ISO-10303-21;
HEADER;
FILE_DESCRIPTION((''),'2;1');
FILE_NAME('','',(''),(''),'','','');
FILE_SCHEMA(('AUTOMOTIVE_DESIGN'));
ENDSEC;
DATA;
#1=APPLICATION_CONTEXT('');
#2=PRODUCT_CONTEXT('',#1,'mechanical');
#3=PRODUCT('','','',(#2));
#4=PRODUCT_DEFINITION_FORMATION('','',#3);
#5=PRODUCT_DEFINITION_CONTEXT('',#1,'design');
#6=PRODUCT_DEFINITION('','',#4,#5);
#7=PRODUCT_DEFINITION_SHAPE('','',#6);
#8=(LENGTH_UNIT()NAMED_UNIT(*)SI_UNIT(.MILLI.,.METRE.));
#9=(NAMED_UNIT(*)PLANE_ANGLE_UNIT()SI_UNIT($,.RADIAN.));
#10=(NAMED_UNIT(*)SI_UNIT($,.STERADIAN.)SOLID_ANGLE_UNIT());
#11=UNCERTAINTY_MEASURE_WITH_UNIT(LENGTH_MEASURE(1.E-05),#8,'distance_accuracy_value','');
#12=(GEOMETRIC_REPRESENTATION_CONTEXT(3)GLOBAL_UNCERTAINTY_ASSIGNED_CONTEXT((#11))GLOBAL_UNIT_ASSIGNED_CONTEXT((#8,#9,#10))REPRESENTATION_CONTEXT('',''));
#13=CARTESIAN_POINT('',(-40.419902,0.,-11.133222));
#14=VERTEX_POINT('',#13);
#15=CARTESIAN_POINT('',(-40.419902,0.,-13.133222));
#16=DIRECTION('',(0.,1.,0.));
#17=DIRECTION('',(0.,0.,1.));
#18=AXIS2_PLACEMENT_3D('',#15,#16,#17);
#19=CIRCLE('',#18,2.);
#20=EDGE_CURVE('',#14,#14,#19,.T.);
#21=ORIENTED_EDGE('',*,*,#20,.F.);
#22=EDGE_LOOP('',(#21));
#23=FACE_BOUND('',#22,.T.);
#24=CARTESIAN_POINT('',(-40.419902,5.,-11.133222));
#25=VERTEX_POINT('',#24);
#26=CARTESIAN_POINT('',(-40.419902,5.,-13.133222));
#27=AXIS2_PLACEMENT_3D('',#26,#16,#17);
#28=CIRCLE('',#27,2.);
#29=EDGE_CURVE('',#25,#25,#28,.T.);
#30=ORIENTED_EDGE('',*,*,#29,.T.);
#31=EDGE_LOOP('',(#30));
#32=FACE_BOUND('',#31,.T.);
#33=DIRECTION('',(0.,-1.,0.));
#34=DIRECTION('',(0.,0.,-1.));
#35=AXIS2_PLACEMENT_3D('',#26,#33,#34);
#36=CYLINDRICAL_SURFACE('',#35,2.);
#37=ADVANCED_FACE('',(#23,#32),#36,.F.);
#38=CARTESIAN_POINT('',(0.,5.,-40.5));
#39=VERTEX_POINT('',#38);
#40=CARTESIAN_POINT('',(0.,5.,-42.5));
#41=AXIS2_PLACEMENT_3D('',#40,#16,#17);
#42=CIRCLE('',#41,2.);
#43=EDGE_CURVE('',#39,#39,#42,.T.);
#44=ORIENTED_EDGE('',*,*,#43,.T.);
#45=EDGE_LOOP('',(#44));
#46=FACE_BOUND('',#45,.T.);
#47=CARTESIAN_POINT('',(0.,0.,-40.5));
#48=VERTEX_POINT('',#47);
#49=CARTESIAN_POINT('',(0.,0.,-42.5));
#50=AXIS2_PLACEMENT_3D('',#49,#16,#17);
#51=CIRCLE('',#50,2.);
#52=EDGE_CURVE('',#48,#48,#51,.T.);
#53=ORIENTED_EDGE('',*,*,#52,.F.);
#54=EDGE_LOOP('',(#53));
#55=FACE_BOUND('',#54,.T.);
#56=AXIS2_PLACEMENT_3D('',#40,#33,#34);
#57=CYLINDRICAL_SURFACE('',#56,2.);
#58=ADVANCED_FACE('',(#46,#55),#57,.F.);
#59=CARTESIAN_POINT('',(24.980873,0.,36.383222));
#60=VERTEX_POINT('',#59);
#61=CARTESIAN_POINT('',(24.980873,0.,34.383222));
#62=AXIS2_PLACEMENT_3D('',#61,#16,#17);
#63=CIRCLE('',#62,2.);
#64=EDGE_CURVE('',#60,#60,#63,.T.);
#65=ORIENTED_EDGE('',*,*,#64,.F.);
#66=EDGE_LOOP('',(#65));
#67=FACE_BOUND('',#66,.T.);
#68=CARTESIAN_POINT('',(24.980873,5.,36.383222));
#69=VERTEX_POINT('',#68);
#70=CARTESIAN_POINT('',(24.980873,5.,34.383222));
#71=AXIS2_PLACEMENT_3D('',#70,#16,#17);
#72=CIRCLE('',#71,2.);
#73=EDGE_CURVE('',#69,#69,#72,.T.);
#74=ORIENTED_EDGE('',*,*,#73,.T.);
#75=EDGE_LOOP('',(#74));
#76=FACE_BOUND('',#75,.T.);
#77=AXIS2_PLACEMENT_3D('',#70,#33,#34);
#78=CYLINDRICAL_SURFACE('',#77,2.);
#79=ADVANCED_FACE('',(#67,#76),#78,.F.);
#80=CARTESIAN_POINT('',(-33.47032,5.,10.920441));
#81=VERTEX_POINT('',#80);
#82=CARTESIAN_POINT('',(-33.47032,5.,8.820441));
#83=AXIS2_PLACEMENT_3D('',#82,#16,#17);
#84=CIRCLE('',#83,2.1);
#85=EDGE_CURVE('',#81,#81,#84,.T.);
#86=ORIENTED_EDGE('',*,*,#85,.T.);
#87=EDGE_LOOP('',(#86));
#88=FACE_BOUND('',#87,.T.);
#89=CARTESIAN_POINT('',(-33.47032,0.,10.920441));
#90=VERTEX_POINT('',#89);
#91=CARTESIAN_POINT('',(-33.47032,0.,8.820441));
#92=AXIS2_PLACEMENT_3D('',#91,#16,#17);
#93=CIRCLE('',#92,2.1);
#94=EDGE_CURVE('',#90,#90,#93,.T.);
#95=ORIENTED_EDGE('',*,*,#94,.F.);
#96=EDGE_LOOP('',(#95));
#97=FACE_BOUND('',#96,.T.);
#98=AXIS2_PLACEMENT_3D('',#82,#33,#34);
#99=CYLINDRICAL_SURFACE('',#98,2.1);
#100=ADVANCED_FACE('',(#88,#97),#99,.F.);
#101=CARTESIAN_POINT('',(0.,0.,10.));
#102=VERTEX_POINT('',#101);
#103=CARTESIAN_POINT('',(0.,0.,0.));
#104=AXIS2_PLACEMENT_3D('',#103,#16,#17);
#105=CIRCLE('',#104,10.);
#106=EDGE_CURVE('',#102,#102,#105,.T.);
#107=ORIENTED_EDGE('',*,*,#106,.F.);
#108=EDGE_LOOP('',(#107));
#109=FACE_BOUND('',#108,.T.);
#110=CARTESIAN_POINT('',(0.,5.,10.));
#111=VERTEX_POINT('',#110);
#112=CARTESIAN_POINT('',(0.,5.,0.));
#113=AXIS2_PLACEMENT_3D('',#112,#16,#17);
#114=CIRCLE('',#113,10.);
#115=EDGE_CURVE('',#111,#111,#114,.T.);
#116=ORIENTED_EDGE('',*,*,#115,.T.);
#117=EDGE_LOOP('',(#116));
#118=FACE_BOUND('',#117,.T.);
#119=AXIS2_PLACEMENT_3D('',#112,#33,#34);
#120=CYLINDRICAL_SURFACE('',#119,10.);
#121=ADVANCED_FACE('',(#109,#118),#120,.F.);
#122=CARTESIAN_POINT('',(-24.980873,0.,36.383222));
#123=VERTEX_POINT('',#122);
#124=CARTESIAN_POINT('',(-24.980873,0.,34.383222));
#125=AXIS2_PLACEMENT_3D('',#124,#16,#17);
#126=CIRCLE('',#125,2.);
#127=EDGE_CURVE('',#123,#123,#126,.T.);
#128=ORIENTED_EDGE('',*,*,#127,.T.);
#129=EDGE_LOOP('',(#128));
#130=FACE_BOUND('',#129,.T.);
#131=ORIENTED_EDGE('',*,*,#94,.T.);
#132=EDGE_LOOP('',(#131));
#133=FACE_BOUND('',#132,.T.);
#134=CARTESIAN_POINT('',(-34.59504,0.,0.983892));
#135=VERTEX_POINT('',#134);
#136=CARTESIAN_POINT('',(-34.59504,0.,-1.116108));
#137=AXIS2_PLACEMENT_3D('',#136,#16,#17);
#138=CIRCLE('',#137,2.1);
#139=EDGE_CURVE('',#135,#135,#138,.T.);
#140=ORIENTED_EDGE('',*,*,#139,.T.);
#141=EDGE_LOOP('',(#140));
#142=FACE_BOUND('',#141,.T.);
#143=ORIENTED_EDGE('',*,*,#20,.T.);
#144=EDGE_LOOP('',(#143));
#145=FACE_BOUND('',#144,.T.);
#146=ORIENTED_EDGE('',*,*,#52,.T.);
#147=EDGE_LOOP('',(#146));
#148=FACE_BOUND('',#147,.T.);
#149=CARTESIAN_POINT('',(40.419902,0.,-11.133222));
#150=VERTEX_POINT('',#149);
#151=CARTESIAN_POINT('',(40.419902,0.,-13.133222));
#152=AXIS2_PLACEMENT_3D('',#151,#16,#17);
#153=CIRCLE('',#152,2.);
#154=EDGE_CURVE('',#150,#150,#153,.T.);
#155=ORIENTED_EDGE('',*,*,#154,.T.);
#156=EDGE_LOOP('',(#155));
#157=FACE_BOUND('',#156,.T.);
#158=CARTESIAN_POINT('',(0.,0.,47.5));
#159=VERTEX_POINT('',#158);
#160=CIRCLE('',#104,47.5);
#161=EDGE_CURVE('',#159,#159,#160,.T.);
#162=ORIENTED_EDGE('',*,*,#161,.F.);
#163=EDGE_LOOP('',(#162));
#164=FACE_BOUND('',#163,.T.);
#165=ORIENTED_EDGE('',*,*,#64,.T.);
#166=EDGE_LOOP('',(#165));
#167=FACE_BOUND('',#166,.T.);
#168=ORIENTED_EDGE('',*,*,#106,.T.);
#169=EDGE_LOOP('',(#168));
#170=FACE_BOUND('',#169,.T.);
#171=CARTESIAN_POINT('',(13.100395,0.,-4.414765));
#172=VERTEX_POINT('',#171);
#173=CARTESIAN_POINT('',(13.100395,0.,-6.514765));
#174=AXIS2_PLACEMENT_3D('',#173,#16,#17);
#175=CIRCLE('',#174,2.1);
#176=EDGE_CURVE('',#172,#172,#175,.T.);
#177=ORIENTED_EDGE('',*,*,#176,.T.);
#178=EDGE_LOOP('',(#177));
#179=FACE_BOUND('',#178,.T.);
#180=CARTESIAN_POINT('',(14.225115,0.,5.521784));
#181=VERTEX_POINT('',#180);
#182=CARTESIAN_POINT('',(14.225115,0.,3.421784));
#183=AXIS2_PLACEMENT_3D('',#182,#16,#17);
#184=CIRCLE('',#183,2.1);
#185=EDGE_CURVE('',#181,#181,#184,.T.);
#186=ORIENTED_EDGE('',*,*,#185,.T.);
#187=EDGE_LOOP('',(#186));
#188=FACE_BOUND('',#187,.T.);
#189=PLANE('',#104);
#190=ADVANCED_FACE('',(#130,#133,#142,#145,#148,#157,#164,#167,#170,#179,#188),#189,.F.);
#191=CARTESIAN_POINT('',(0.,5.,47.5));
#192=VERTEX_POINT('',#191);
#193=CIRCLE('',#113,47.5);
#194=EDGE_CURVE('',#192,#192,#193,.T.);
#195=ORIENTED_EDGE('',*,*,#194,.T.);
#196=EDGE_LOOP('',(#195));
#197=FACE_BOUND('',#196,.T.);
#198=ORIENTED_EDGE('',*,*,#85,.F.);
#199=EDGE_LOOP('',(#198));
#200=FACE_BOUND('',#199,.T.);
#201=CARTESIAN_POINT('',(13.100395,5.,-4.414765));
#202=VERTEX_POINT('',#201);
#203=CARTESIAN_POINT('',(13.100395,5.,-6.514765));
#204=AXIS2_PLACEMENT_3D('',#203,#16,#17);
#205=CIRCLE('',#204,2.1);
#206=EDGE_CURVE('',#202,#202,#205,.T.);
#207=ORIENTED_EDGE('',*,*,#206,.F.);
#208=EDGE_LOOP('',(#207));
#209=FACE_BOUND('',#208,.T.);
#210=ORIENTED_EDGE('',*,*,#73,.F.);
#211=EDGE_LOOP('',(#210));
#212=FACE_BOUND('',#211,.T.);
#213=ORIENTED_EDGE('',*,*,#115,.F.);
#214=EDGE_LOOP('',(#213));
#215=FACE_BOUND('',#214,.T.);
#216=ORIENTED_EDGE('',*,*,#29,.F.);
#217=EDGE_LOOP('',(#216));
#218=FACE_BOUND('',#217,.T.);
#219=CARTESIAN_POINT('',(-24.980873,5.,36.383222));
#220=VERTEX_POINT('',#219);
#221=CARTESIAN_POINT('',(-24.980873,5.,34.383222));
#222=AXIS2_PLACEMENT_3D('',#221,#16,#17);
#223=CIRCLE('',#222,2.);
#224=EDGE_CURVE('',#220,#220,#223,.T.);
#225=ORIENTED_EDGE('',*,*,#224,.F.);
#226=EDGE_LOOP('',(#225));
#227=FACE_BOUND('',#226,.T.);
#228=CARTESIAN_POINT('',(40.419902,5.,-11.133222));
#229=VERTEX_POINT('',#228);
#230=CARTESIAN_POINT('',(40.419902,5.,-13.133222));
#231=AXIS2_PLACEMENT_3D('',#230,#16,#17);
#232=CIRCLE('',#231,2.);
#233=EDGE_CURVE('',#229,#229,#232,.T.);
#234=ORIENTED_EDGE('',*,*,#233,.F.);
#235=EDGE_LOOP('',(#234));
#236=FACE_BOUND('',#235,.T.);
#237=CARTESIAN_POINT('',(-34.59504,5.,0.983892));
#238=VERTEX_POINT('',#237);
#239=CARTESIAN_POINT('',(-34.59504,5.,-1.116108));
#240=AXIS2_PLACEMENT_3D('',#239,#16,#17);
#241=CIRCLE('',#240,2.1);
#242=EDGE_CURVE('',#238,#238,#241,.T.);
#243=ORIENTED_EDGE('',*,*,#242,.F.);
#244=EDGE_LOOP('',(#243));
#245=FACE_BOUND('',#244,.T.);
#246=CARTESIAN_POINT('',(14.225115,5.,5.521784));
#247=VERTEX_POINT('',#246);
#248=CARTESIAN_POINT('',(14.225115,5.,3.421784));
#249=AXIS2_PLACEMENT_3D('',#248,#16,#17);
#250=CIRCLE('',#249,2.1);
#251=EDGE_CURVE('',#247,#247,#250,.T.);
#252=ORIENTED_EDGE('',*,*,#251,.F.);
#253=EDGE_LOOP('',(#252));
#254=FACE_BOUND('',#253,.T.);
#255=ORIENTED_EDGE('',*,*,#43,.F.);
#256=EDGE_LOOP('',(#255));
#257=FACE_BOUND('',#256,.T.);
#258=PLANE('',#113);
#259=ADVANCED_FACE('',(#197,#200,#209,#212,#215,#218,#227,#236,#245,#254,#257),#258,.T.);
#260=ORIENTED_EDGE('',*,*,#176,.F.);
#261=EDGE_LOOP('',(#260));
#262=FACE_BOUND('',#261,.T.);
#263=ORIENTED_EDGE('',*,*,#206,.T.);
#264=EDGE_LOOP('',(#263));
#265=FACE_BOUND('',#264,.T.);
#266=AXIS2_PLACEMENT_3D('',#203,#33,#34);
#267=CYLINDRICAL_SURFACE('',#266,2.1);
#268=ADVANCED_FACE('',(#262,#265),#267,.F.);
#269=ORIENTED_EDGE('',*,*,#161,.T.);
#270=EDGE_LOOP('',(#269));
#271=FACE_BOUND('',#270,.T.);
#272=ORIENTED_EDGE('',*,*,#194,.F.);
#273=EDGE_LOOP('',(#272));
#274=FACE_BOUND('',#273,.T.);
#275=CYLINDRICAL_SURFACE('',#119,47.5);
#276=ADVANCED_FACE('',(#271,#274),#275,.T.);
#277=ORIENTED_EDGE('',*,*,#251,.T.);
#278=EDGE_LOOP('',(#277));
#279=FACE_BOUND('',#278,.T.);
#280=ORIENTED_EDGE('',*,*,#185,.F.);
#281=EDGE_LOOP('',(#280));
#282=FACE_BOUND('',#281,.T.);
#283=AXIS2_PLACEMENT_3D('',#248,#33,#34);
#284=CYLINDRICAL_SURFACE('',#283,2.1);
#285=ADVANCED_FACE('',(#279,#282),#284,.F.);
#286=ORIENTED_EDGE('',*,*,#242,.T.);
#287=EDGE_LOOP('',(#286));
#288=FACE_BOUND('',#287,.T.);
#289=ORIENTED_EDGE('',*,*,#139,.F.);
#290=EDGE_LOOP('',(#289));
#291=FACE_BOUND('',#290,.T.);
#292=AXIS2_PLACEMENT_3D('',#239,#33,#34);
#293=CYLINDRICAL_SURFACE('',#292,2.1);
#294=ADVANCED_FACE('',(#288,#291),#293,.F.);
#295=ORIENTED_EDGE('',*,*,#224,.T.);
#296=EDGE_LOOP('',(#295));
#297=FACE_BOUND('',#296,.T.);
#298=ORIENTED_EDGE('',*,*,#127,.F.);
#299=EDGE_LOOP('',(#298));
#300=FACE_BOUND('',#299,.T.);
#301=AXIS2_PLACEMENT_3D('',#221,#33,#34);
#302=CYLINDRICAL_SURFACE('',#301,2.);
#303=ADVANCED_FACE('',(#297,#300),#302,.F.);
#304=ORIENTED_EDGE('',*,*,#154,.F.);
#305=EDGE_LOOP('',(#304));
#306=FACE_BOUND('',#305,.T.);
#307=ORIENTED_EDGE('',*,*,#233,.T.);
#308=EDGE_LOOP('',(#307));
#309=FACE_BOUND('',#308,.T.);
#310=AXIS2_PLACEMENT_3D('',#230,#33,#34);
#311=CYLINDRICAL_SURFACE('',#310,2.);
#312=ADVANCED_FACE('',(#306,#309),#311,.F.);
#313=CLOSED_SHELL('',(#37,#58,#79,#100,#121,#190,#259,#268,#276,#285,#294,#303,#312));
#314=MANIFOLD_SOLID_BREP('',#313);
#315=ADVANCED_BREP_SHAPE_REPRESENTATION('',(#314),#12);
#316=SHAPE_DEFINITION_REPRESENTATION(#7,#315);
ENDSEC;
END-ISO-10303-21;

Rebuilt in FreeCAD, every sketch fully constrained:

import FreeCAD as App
import Part
import Sketcher

doc = App.newDocument("Part")
body = doc.addObject("PartDesign::Body", "Body")

sketch1 = body.newObject("Sketcher::SketchObject", "Sketch")
sketch1.AttachmentSupport = (doc.getObject("XZ_Plane"), [""])
sketch1.MapMode = "FlatFace"
sketch1.addGeometry(Part.Circle(App.Vector(0, 0, 0), App.Vector(0, 0, 1), 47.5), False)
sketch1.addGeometry(Part.Circle(App.Vector(-24.980873, 34.383222, 0), App.Vector(0, 0, 1), 2), False)
sketch1.addGeometry(Part.Circle(App.Vector(-33.47032, 8.820441, 0), App.Vector(0, 0, 1), 2.1), False)
sketch1.addGeometry(Part.Circle(App.Vector(-34.59504, -1.116108, 0), App.Vector(0, 0, 1), 2.1), False)
sketch1.addGeometry(Part.Circle(App.Vector(0, 0, 0), App.Vector(0, 0, 1), 10), False)
sketch1.addGeometry(Part.Circle(App.Vector(24.980873, 34.383222, 0), App.Vector(0, 0, 1), 2), False)
sketch1.addGeometry(Part.Circle(App.Vector(14.225115, 3.421784, 0), App.Vector(0, 0, 1), 2.1), False)
sketch1.addGeometry(Part.Circle(App.Vector(-40.419902, -13.133222, 0), App.Vector(0, 0, 1), 2), False)
sketch1.addGeometry(Part.Circle(App.Vector(0, -42.5, 0), App.Vector(0, 0, 1), 2), False)
sketch1.addGeometry(Part.Circle(App.Vector(13.100395, -6.514765, 0), App.Vector(0, 0, 1), 2.1), False)
sketch1.addGeometry(Part.Circle(App.Vector(40.419902, -13.133222, 0), App.Vector(0, 0, 1), 2), False)
sketch1.addConstraint(Sketcher.Constraint("Coincident", 0, 3, -1, 1))
sketch1.addConstraint(Sketcher.Constraint("Coincident", 4, 3, -1, 1))
sketch1.addConstraint(Sketcher.Constraint("Equal", 2, 3))
sketch1.addConstraint(Sketcher.Constraint("Equal", 1, 5))
sketch1.addConstraint(Sketcher.Constraint("Equal", 3, 6))
sketch1.addConstraint(Sketcher.Constraint("Equal", 5, 7))
sketch1.addConstraint(Sketcher.Constraint("Equal", 7, 8))
sketch1.addConstraint(Sketcher.Constraint("Equal", 6, 9))
sketch1.addConstraint(Sketcher.Constraint("Equal", 8, 10))
sketch1.addConstraint(Sketcher.Constraint("Symmetric", 1, 3, 5, 3, -2))
sketch1.addConstraint(Sketcher.Constraint("Symmetric", 7, 3, 10, 3, -2))
sketch1.addConstraint(Sketcher.Constraint("PointOnObject", 8, 3, -2))
sketch1.addConstraint(Sketcher.Constraint("Diameter", 0, 95.0))
sketch1.addConstraint(Sketcher.Constraint("Diameter", 1, 4.0))
sketch1.addConstraint(Sketcher.Constraint("Diameter", 4, 20.0))
sketch1.addConstraint(Sketcher.Constraint("Diameter", 2, 4.2))
sketch1.addConstraint(Sketcher.Constraint("DistanceY", 8, 3, -1, 1, 42.5))
sketch1.addConstraint(Sketcher.Constraint("DistanceX", 7, 3, -1, 1, 40.419902))
sketch1.addConstraint(Sketcher.Constraint("DistanceX", 2, 3, -1, 1, 33.47032))
sketch1.addConstraint(Sketcher.Constraint("DistanceY", -1, 1, 2, 3, 8.820441))
sketch1.addConstraint(Sketcher.Constraint("DistanceX", 3, 3, -1, 1, 34.59504))
sketch1.addConstraint(Sketcher.Constraint("DistanceY", 3, 3, -1, 1, 1.116108))
sketch1.addConstraint(Sketcher.Constraint("DistanceY", 2, 3, 1, 3, 25.562781))
sketch1.addConstraint(Sketcher.Constraint("DistanceX", 6, 3, 5, 3, 10.755758))
sketch1.addConstraint(Sketcher.Constraint("DistanceX", 7, 3, 1, 3, 15.439029))
sketch1.addConstraint(Sketcher.Constraint("DistanceX", 9, 3, 6, 3, 1.12472))
sketch1.addConstraint(Sketcher.Constraint("DistanceY", 9, 3, 6, 3, 9.936549))
sketch1.addConstraint(Sketcher.Constraint("DistanceY", -1, 1, 6, 3, 3.421784))
sketch1.addConstraint(Sketcher.Constraint("DistanceY", 7, 3, -1, 1, 13.133222))
pad1 = body.newObject("PartDesign::Pad", "Pad")
pad1.Profile = sketch1
pad1.Length = 5
pad1.Reversed = True

doc.recompute()
